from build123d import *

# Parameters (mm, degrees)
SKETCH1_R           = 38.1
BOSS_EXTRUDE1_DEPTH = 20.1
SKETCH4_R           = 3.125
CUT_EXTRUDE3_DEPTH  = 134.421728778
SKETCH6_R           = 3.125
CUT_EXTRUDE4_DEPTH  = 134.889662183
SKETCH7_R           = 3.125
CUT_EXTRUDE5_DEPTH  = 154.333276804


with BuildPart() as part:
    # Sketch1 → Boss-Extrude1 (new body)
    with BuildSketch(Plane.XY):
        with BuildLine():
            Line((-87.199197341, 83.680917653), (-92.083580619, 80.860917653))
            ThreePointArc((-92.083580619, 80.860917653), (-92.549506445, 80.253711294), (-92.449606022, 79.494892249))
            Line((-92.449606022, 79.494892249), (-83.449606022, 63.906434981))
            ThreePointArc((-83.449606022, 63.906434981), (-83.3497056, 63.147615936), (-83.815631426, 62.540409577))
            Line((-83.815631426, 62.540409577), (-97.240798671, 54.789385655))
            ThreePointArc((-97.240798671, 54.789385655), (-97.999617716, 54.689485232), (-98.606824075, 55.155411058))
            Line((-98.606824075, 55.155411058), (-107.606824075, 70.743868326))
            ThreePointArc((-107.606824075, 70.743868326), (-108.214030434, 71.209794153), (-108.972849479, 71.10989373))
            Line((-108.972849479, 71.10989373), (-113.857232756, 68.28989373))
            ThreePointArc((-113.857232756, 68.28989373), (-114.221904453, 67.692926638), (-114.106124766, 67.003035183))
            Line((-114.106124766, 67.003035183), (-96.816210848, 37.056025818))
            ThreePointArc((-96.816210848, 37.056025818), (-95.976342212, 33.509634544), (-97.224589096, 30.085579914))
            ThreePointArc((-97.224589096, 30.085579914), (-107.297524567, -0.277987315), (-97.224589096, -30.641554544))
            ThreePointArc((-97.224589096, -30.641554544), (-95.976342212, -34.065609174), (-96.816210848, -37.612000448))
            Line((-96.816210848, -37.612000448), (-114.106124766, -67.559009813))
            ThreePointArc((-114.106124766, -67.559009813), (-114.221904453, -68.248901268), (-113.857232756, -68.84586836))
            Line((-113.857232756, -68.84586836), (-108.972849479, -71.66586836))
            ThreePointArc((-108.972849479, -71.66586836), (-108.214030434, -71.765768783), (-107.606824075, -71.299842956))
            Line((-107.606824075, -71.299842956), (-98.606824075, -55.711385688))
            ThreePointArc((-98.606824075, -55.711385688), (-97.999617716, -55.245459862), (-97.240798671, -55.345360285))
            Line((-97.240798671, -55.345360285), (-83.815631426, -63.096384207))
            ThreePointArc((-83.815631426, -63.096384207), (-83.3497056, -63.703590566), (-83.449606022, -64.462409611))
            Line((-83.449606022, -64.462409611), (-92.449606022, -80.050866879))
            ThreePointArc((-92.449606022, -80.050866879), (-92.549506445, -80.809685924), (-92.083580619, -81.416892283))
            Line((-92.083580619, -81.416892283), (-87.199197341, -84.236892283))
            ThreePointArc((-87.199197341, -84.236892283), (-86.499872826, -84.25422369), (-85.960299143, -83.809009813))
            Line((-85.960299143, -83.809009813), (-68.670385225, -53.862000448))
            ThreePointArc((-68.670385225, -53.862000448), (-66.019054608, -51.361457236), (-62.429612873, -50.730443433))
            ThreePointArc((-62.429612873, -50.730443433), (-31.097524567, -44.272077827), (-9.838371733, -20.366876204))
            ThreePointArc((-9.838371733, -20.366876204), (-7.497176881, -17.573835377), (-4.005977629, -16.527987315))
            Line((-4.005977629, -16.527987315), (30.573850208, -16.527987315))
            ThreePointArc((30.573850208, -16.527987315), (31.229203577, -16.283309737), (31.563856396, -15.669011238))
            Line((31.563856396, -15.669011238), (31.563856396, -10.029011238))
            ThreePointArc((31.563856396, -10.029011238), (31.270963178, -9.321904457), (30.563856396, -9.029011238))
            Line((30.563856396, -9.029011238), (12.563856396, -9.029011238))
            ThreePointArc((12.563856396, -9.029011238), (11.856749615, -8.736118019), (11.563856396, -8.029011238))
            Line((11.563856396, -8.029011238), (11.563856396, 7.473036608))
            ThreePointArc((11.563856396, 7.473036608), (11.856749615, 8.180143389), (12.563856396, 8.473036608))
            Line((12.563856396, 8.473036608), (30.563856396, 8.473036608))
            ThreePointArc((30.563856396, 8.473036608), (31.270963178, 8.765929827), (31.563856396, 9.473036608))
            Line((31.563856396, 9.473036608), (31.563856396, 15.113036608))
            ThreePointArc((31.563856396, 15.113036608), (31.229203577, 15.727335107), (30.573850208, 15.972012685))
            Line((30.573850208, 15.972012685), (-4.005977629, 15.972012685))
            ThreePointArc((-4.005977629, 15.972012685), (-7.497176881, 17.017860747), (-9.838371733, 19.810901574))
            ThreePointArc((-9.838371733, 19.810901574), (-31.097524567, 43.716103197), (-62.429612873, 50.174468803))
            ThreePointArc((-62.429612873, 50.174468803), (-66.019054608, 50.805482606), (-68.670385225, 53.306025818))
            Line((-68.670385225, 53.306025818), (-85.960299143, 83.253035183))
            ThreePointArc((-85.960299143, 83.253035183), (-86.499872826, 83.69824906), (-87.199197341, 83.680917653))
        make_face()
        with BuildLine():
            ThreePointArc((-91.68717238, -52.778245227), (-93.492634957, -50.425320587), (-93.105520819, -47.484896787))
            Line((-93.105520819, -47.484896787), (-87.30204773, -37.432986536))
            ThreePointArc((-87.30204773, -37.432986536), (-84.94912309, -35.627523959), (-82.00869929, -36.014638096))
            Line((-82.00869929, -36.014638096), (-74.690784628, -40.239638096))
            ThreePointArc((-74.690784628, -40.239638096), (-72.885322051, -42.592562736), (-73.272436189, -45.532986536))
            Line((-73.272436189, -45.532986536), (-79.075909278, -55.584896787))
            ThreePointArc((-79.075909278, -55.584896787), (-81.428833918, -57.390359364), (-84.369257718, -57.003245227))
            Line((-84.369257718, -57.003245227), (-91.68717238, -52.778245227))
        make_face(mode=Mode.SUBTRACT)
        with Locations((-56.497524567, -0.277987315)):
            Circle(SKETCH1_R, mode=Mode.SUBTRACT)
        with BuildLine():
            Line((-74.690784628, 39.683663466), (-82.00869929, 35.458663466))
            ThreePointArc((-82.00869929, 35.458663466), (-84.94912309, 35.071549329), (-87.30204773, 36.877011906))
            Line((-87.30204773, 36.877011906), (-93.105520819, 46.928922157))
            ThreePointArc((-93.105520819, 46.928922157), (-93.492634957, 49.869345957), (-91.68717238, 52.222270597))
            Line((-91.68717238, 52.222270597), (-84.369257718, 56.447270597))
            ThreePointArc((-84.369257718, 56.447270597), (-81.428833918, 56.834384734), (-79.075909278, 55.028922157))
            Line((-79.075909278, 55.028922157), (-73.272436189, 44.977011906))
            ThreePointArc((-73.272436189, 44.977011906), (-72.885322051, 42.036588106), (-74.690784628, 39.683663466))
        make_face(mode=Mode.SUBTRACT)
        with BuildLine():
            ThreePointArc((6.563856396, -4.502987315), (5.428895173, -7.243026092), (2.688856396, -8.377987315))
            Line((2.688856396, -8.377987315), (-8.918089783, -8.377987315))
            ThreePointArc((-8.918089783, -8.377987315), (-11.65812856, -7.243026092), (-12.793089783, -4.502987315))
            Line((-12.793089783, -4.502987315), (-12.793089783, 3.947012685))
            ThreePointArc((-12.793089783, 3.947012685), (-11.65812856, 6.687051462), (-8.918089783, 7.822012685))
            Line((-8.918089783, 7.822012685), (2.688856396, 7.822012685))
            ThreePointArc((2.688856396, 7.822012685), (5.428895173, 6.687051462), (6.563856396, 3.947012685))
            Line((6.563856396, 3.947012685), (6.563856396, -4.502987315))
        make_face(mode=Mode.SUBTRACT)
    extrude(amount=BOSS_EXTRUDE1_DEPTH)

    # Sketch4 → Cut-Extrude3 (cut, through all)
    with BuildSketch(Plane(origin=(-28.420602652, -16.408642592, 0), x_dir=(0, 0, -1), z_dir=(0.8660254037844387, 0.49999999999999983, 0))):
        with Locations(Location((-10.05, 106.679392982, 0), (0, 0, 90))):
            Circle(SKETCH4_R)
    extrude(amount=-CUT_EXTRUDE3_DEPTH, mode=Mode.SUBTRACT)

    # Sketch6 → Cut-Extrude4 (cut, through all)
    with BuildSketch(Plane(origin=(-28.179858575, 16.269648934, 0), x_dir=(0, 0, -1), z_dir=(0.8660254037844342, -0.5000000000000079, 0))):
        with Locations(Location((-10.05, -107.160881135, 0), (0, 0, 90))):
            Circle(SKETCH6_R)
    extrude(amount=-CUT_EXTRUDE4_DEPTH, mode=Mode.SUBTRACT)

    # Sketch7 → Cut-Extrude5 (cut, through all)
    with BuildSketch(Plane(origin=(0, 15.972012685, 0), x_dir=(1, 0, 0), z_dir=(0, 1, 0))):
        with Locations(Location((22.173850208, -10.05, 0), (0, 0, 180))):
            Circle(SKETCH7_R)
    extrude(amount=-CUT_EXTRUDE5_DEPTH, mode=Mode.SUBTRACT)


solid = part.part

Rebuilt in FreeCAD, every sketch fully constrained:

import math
import FreeCAD as App
import Part
import Sketcher
from FreeCAD import Vector
Q = App.Units.Quantity

doc = App.newDocument("Part")
body = doc.addObject("PartDesign::Body", "Body")

# Sketch on XY plane
sketch1 = doc.addObject("Sketcher::SketchObject", "Sketch")
body.addObject(sketch1)
sketch1.AttachmentSupport = (doc.XY_Plane, [""])
sketch1.MapMode = "FlatFace"
sketch1.addGeometry([
    Part.LineSegment(Vector(-87.2, 83.7, 0), Vector(-92.1, 80.9, 0)),  # 0
    Part.ArcOfCircle(Part.Circle(Vector(-91.6, 80, 0), Vector(0, 0, 1), 1), math.radians(120), math.radians(210)),  # 1
    Part.LineSegment(Vector(-92.4, 79.5, 0), Vector(-83.4, 63.9, 0)),  # 2
    Part.ArcOfCircle(Part.Circle(Vector(-84.3, 63.4, 0), Vector(0, 0, 1), 1), math.radians(-60), math.radians(30)),  # 3
    Part.LineSegment(Vector(-83.8, 62.5, 0), Vector(-97.2, 54.8, 0)),  # 4
    Part.ArcOfCircle(Part.Circle(Vector(-97.7, 55.7, 0), Vector(0, 0, 1), 1), math.radians(-150), math.radians(-60)),  # 5
    Part.LineSegment(Vector(-98.6, 55.2, 0), Vector(-107.6, 70.7, 0)),  # 6
    Part.ArcOfCircle(Part.Circle(Vector(-108.5, 70.2, 0), Vector(0, 0, 1), 1), math.radians(30), math.radians(120)),  # 7
    Part.LineSegment(Vector(-109, 71.1, 0), Vector(-113.9, 68.3, 0)),  # 8
    Part.ArcOfCircle(Part.Circle(Vector(-113.2, 67.5, 0), Vector(0, 0, 1), 1), math.radians(128), math.radians(210)),  # 9
    Part.LineSegment(Vector(-114.1, 67, 0), Vector(-96.8, 37.1, 0)),  # 10
    Part.ArcOfCircle(Part.Circle(Vector(-102.3, 33.9, 0), Vector(0, 0, 1), 6.3), math.radians(-37), math.radians(30)),  # 11
    Part.ArcOfCircle(Part.Circle(Vector(-56.5, -0.3, 0), Vector(0, 0, 1), 50.8), math.radians(143), math.radians(217)),  # 12
    Part.ArcOfCircle(Part.Circle(Vector(-102.3, -34.4, 0), Vector(0, 0, 1), 6.3), math.radians(-30), math.radians(37)),  # 13
    Part.LineSegment(Vector(-96.8, -37.6, 0), Vector(-114.1, -67.6, 0)),  # 14
    Part.ArcOfCircle(Part.Circle(Vector(-113.2, -68.1, 0), Vector(0, 0, 1), 1), math.radians(150), math.radians(232)),  # 15
    Part.LineSegment(Vector(-113.9, -68.8, 0), Vector(-109, -71.7, 0)),  # 16
    Part.ArcOfCircle(Part.Circle(Vector(-108.5, -70.8, 0), Vector(0, 0, 1), 1), math.radians(-120), math.radians(-30)),  # 17
    Part.LineSegment(Vector(-107.6, -71.3, 0), Vector(-98.6, -55.7, 0)),  # 18
    Part.ArcOfCircle(Part.Circle(Vector(-97.7, -56.2, 0), Vector(0, 0, 1), 1), math.radians(60), math.radians(150)),  # 19
    Part.LineSegment(Vector(-97.2, -55.3, 0), Vector(-83.8, -63.1, 0)),  # 20
    Part.ArcOfCircle(Part.Circle(Vector(-84.3, -64, 0), Vector(0, 0, 1), 1), math.radians(-30), math.radians(60)),  # 21
    Part.LineSegment(Vector(-83.4, -64.5, 0), Vector(-92.4, -80.1, 0)),  # 22
    Part.ArcOfCircle(Part.Circle(Vector(-91.6, -80.6, 0), Vector(0, 0, 1), 1), math.radians(150), math.radians(240)),  # 23
    Part.LineSegment(Vector(-92.1, -81.4, 0), Vector(-87.2, -84.2, 0)),  # 24
    Part.ArcOfCircle(Part.Circle(Vector(-86.8, -83.3, 0), Vector(0, 0, 1), 1), math.radians(-112), math.radians(-30)),  # 25
    Part.LineSegment(Vector(-86, -83.8, 0), Vector(-68.7, -53.9, 0)),  # 26
    Part.ArcOfCircle(Part.Circle(Vector(-63.2, -57, 0), Vector(0, 0, 1), 6.3), math.radians(83), math.radians(150)),  # 27
    Part.ArcOfCircle(Part.Circle(Vector(-56.5, -0.3, 0), Vector(0, 0, 1), 50.8), math.radians(-97), math.radians(-23)),  # 28
    Part.ArcOfCircle(Part.Circle(Vector(-4, -22.9, 0), Vector(0, 0, 1), 6.3), math.radians(90), math.radians(157)),  # 29
    Part.LineSegment(Vector(-4, -16.5, 0), Vector(30.6, -16.5, 0)),  # 30
    Part.ArcOfCircle(Part.Circle(Vector(30.6, -15.5, 0), Vector(0, 0, 1), 1), math.radians(-90), math.radians(-8)),  # 31
    Part.LineSegment(Vector(31.6, -15.7, 0), Vector(31.6, -10, 0)),  # 32
    Part.ArcOfCircle(Part.Circle(Vector(30.6, -10, 0), Vector(0, 0, 1), 1), math.radians(0), math.radians(90)),  # 33
    Part.LineSegment(Vector(30.6, -9, 0), Vector(12.6, -9, 0)),  # 34
    Part.ArcOfCircle(Part.Circle(Vector(12.6, -8, 0), Vector(0, 0, 1), 1), math.radians(-180), math.radians(-90)),  # 35
    Part.LineSegment(Vector(11.6, -8, 0), Vector(11.6, 7.5, 0)),  # 36
    Part.ArcOfCircle(Part.Circle(Vector(12.6, 7.5, 0), Vector(0, 0, 1), 1), math.radians(90), math.radians(180)),  # 37
    Part.LineSegment(Vector(12.6, 8.5, 0), Vector(30.6, 8.5, 0)),  # 38
    Part.ArcOfCircle(Part.Circle(Vector(30.6, 9.5, 0), Vector(0, 0, 1), 1), math.radians(-90), math.radians(0)),  # 39
    Part.LineSegment(Vector(31.6, 9.5, 0), Vector(31.6, 15.1, 0)),  # 40
    Part.ArcOfCircle(Part.Circle(Vector(30.6, 15, 0), Vector(0, 0, 1), 1), math.radians(8), math.radians(90)),  # 41
    Part.LineSegment(Vector(30.6, 16, 0), Vector(-4, 16, 0)),  # 42
    Part.ArcOfCircle(Part.Circle(Vector(-4, 22.3, 0), Vector(0, 0, 1), 6.3), math.radians(-157), math.radians(-90)),  # 43
    Part.ArcOfCircle(Part.Circle(Vector(-56.5, -0.3, 0), Vector(0, 0, 1), 50.8), math.radians(23), math.radians(97)),  # 44
    Part.ArcOfCircle(Part.Circle(Vector(-63.2, 56.5, 0), Vector(0, 0, 1), 6.3), math.radians(-150), math.radians(-83)),  # 45
    Part.LineSegment(Vector(-68.7, 53.3, 0), Vector(-86, 83.3, 0)),  # 46
    Part.ArcOfCircle(Part.Circle(Vector(-86.8, 82.8, 0), Vector(0, 0, 1), 1), math.radians(30), math.radians(112)),  # 47
    Part.LineSegment(Vector(-84.4, -57, 0), Vector(-91.7, -52.8, 0)),  # 48
    Part.ArcOfCircle(Part.Circle(Vector(-89.7, -49.4, 0), Vector(0, 0, 1), 3.9), math.radians(150), math.radians(240)),  # 49
    Part.LineSegment(Vector(-93.1, -47.5, 0), Vector(-87.3, -37.4, 0)),  # 50
    Part.ArcOfCircle(Part.Circle(Vector(-83.9, -39.4, 0), Vector(0, 0, 1), 3.9), math.radians(60), math.radians(150)),  # 51
    Part.LineSegment(Vector(-82, -36, 0), Vector(-74.7, -40.2, 0)),  # 52
    Part.ArcOfCircle(Part.Circle(Vector(-76.6, -43.6, 0), Vector(0, 0, 1), 3.9), math.radians(-30), math.radians(60)),  # 53
    Part.LineSegment(Vector(-73.3, -45.5, 0), Vector(-79.1, -55.6, 0)),  # 54
    Part.ArcOfCircle(Part.Circle(Vector(-82.4, -53.6, 0), Vector(0, 0, 1), 3.9), math.radians(-120), math.radians(-30)),  # 55
    Part.Circle(Vector(-56.5, -0.3, 0), Vector(0, 0, 1), 38.1),  # 56
    Part.ArcOfCircle(Part.Circle(Vector(-76.6, 43, 0), Vector(0, 0, 1), 3.9), math.radians(-60), math.radians(30)),  # 57
    Part.LineSegment(Vector(-74.7, 39.7, 0), Vector(-82, 35.5, 0)),  # 58
    Part.ArcOfCircle(Part.Circle(Vector(-83.9, 38.8, 0), Vector(0, 0, 1), 3.9), math.radians(-150), math.radians(-60)),  # 59
    Part.LineSegment(Vector(-87.3, 36.9, 0), Vector(-93.1, 46.9, 0)),  # 60
    Part.ArcOfCircle(Part.Circle(Vector(-89.7, 48.9, 0), Vector(0, 0, 1), 3.9), math.radians(120), math.radians(210)),  # 61
    Part.LineSegment(Vector(-91.7, 52.2, 0), Vector(-84.4, 56.4, 0)),  # 62
    Part.ArcOfCircle(Part.Circle(Vector(-82.4, 53.1, 0), Vector(0, 0, 1), 3.9), math.radians(30), math.radians(120)),  # 63
    Part.LineSegment(Vector(-79.1, 55, 0), Vector(-73.3, 45, 0)),  # 64
    Part.LineSegment(Vector(6.6, 3.9, 0), Vector(6.6, -4.5, 0)),  # 65
    Part.ArcOfCircle(Part.Circle(Vector(2.7, -4.5, 0), Vector(0, 0, 1), 3.9), math.radians(-90), math.radians(0)),  # 66
    Part.LineSegment(Vector(2.7, -8.4, 0), Vector(-8.9, -8.4, 0)),  # 67
    Part.ArcOfCircle(Part.Circle(Vector(-8.9, -4.5, 0), Vector(0, 0, 1), 3.9), math.radians(180), math.radians(270)),  # 68
    Part.LineSegment(Vector(-12.8, -4.5, 0), Vector(-12.8, 3.9, 0)),  # 69
    Part.ArcOfCircle(Part.Circle(Vector(-8.9, 3.9, 0), Vector(0, 0, 1), 3.9), math.radians(90), math.radians(180)),  # 70
    Part.LineSegment(Vector(-8.9, 7.8, 0), Vector(2.7, 7.8, 0)),  # 71
    Part.ArcOfCircle(Part.Circle(Vector(2.7, 3.9, 0), Vector(0, 0, 1), 3.9), math.radians(0), math.radians(90)),  # 72
], False)
sketch1.addConstraint([
    Sketcher.Constraint("Tangent", 0, 2, 1, 1),
    Sketcher.Constraint("Tangent", 1, 2, 2, 1),
    Sketcher.Constraint("Tangent", 2, 2, 3, 2),
    Sketcher.Constraint("Tangent", 3, 1, 4, 1),
    Sketcher.Constraint("Tangent", 4, 2, 5, 2),
    Sketcher.Constraint("Tangent", 5, 1, 6, 1),
    Sketcher.Constraint("Tangent", 6, 2, 7, 1),
    Sketcher.Constraint("Tangent", 7, 2, 8, 1),
    Sketcher.Constraint("Coincident", 8, 2, 9, 1),
    Sketcher.Constraint("Tangent", 9, 2, 10, 1),
    Sketcher.Constraint("Tangent", 10, 2, 11, 2),
    Sketcher.Constraint("Tangent", 11, 1, 12, 1),
    Sketcher.Constraint("Tangent", 12, 2, 13, 2),
    Sketcher.Constraint("Tangent", 13, 1, 14, 1),
    Sketcher.Constraint("Tangent", 14, 2, 15, 1),
    Sketcher.Constraint("Coincident", 15, 2, 16, 1),
    Sketcher.Constraint("Tangent", 16, 2, 17, 1),
    Sketcher.Constraint("Tangent", 17, 2, 18, 1),
    Sketcher.Constraint("Tangent", 18, 2, 19, 2),
    Sketcher.Constraint("Tangent", 19, 1, 20, 1),
    Sketcher.Constraint("Tangent", 20, 2, 21, 2),
    Sketcher.Constraint("Tangent", 21, 1, 22, 1),
    Sketcher.Constraint("Tangent", 22, 2, 23, 1),
    Sketcher.Constraint("Tangent", 23, 2, 24, 1),
    Sketcher.Constraint("Coincident", 24, 2, 25, 1),
    Sketcher.Constraint("Tangent", 25, 2, 26, 1),
    Sketcher.Constraint("Tangent", 26, 2, 27, 2),
    Sketcher.Constraint("Tangent", 27, 1, 28, 1),
    Sketcher.Constraint("Tangent", 28, 2, 29, 2),
    Sketcher.Constraint("Tangent", 29, 1, 30, 1),
    Sketcher.Constraint("Tangent", 30, 2, 31, 1),
    Sketcher.Constraint("Coincident", 31, 2, 32, 1),
    Sketcher.Constraint("Tangent", 32, 2, 33, 1),
    Sketcher.Constraint("Tangent", 33, 2, 34, 1),
    Sketcher.Constraint("Tangent", 34, 2, 35, 2),
    Sketcher.Constraint("Tangent", 35, 1, 36, 1),
    Sketcher.Constraint("Tangent", 36, 2, 37, 2),
    Sketcher.Constraint("Tangent", 37, 1, 38, 1),
    Sketcher.Constraint("Tangent", 38, 2, 39, 1),
    Sketcher.Constraint("Tangent", 39, 2, 40, 1),
    Sketcher.Constraint("Coincident", 40, 2, 41, 1),
    Sketcher.Constraint("Tangent", 41, 2, 42, 1),
    Sketcher.Constraint("Tangent", 42, 2, 43, 2),
    Sketcher.Constraint("Tangent", 43, 1, 44, 1),
    Sketcher.Constraint("Tangent", 44, 2, 45, 2),
    Sketcher.Constraint("Tangent", 45, 1, 46, 1),
    Sketcher.Constraint("Tangent", 46, 2, 47, 1),
    Sketcher.Constraint("Coincident", 47, 2, 0, 1),
    Sketcher.Constraint("Tangent", 48, 2, 49, 2),
    Sketcher.Constraint("Tangent", 49, 1, 50, 1),
    Sketcher.Constraint("Tangent", 50, 2, 51, 2),
    Sketcher.Constraint("Tangent", 51, 1, 52, 1),
    Sketcher.Constraint("Tangent", 52, 2, 53, 2),
    Sketcher.Constraint("Tangent", 53, 1, 54, 1),
    Sketcher.Constraint("Tangent", 54, 2, 55, 2),
    Sketcher.Constraint("Tangent", 55, 1, 48, 1),
    Sketcher.Constraint("Tangent", 57, 1, 58, 1),
    Sketcher.Constraint("Tangent", 58, 2, 59, 2),
    Sketcher.Constraint("Tangent", 59, 1, 60, 1),
    Sketcher.Constraint("Tangent", 60, 2, 61, 2),
    Sketcher.Constraint("Tangent", 61, 1, 62, 1),
    Sketcher.Constraint("Tangent", 62, 2, 63, 2),
    Sketcher.Constraint("Tangent", 63, 1, 64, 1),
    Sketcher.Constraint("Tangent", 64, 2, 57, 2),
    Sketcher.Constraint("Tangent", 65, 2, 66, 2),
    Sketcher.Constraint("Tangent", 66, 1, 67, 1),
    Sketcher.Constraint("Tangent", 67, 2, 68, 2),
    Sketcher.Constraint("Tangent", 68, 1, 69, 1),
    Sketcher.Constraint("Tangent", 69, 2, 70, 2),
    Sketcher.Constraint("Tangent", 70, 1, 71, 1),
    Sketcher.Constraint("Tangent", 71, 2, 72, 2),
    Sketcher.Constraint("Tangent", 72, 1, 65, 1),
    Sketcher.Constraint("Horizontal", 30),
    Sketcher.Constraint("Vertical", 32),
    Sketcher.Constraint("Horizontal", 34),
    Sketcher.Constraint("Vertical", 36),
    Sketcher.Constraint("Horizontal", 38),
    Sketcher.Constraint("Vertical", 40),
    Sketcher.Constraint("Horizontal", 42),
    Sketcher.Constraint("Vertical", 65),
    Sketcher.Constraint("Horizontal", 67),
    Sketcher.Constraint("Vertical", 69),
    Sketcher.Constraint("Horizontal", 71),
    Sketcher.Constraint("Coincident", 28, 3, 12, 3),
    Sketcher.Constraint("Coincident", 44, 3, 12, 3),
    Sketcher.Constraint("Coincident", 56, 3, 12, 3),
    Sketcher.Constraint("Equal", 1, 3),
    Sketcher.Constraint("Equal", 3, 5),
    Sketcher.Constraint("Equal", 5, 7),
    Sketcher.Constraint("Equal", 7, 9),
    Sketcher.Constraint("Equal", 11, 13),
    Sketcher.Constraint("Equal", 9, 15),
    Sketcher.Constraint("Equal", 15, 17),
    Sketcher.Constraint("Equal", 17, 19),
    Sketcher.Constraint("Equal", 19, 21),
    Sketcher.Constraint("Equal", 21, 23),
    Sketcher.Constraint("Equal", 23, 25),
    Sketcher.Constraint("Equal", 13, 27),
    Sketcher.Constraint("Equal", 12, 28),
    Sketcher.Constraint("Equal", 27, 29),
    Sketcher.Constraint("Equal", 25, 31),
    Sketcher.Constraint("Equal", 31, 33),
    Sketcher.Constraint("Equal", 33, 35),
    Sketcher.Constraint("Equal", 35, 37),
    Sketcher.Constraint("Equal", 37, 39),
    Sketcher.Constraint("Equal", 39, 41),
    Sketcher.Constraint("Equal", 29, 43),
    Sketcher.Constraint("Equal", 28, 44),
    Sketcher.Constraint("Equal", 43, 45),
    Sketcher.Constraint("Equal", 41, 47),
    Sketcher.Constraint("Equal", 49, 51),
    Sketcher.Constraint("Equal", 51, 53),
    Sketcher.Constraint("Equal", 53, 55),
    Sketcher.Constraint("Equal", 55, 57),
    Sketcher.Constraint("Equal", 57, 59),
    Sketcher.Constraint("Equal", 59, 61),
    Sketcher.Constraint("Equal", 61, 63),
    Sketcher.Constraint("Equal", 63, 66),
    Sketcher.Constraint("Equal", 66, 68),
    Sketcher.Constraint("Equal", 68, 70),
    Sketcher.Constraint("Equal", 70, 72),
    Sketcher.Constraint("Perpendicular", 0, 2),
    Sketcher.Constraint("Perpendicular", 2, 4),
    Sketcher.Constraint("Perpendicular", 4, 6),
    Sketcher.Constraint("Perpendicular", 6, 8),
    Sketcher.Constraint("Perpendicular", 8, 10),
    Sketcher.Constraint("Perpendicular", 14, 16),
    Sketcher.Constraint("Perpendicular", 16, 18),
    Sketcher.Constraint("Perpendicular", 18, 20),
    Sketcher.Constraint("Perpendicular", 20, 22),
    Sketcher.Constraint("Perpendicular", 22, 24),
    Sketcher.Constraint("Perpendicular", 24, 26),
    Sketcher.Constraint("Parallel", 10, 46),
    Sketcher.Constraint("Perpendicular", 26, 48),
    Sketcher.Constraint("Perpendicular", 48, 50),
    Sketcher.Constraint("Perpendicular", 50, 52),
    Sketcher.Constraint("Perpendicular", 52, 54),
    Sketcher.Constraint("Perpendicular", 46, 58),
    Sketcher.Constraint("Perpendicular", 58, 60),
    Sketcher.Constraint("Perpendicular", 60, 62),
    Sketcher.Constraint("Perpendicular", 62, 64),
    Sketcher.Constraint("Vertical", 11, 3, 13, 3),
    Sketcher.Constraint("Vertical", 9, 3, 15, 3),
    Sketcher.Constraint("Vertical", 7, 3, 17, 3),
    Sketcher.Constraint("Vertical", 5, 3, 19, 3),
    Sketcher.Constraint("Vertical", 3, 3, 21, 3),
    Sketcher.Constraint("Vertical", 1, 3, 23, 3),
    Sketcher.Constraint("Vertical", 33, 3, 39, 3),
    Sketcher.Constraint("Vertical", 31, 3, 41, 3),
    Sketcher.Constraint("Vertical", 29, 3, 43, 3),
    Sketcher.Constraint("Vertical", 27, 3, 45, 3),
    Sketcher.Constraint("Vertical", 25, 3, 47, 3),
    Sketcher.Constraint("Vertical", 53, 3, 57, 3),
    Sketcher.Constraint("Vertical", 51, 3, 59, 3),
    Sketcher.Constraint("Vertical", 49, 3, 61, 3),
    Sketcher.Constraint("Vertical", 10, 2, 13, 1),
    Sketcher.Constraint("Vertical", 8, 2, 15, 2),
    Sketcher.Constraint("Equal", 32, 40),
    Sketcher.Constraint("Equal", 2, 6),
    Sketcher.Constraint("Equal", 0, 8),
    Sketcher.Constraint("Equal", 14, 26),
    Sketcher.Constraint("Radius", 1, 1.0),
    Sketcher.Constraint("Diameter", 56, 76.2),
    Sketcher.Constraint("Radius", 12, 50.8),
    Sketcher.Constraint("DistanceX", 34, 2, 34, 1, 18.0),
    Sketcher.Constraint("Angle", 0, Q("-150 deg")),
    Sketcher.Constraint("Radius", 11, 6.35),
    Sketcher.Constraint("Distance", 2, 18.0),
    Sketcher.Constraint("Radius", 49, 3.875),
    Sketcher.Constraint("DistanceY", 32, 1, 32, 2, 5.64),
    Sketcher.Constraint("DistanceY", 65, 2, 65, 1, 8.45),
    Sketcher.Constraint("Distance", 0, 5.64),
    Sketcher.Constraint("Distance", 48, 8.45),
    Sketcher.Constraint("DistanceY", 13, 3, -1, 1, 34.437),
    Sketcher.Constraint("DistanceY", 27, 3, -1, 1, 57.037),
    Sketcher.Constraint("DistanceX", 5, 3, -1, 1, 97.740799),
    Sketcher.Constraint("DistanceX", 9, 3, -1, 1, 113.240099),
    Sketcher.Constraint("DistanceX", 51, 3, -1, 1, 83.946199),
    Sketcher.Constraint("DistanceX", 25, 2, -1, 1, 85.960299),
    Sketcher.Constraint("DistanceY", -1, 1, 43, 1, 19.810902),
    Sketcher.Constraint("DistanceX", 30, 1, 30, 2, 34.579828),
    Sketcher.Constraint("DistanceX", 67, 2, 67, 1, 11.606946),
    Sketcher.Constraint("DistanceY", 36, 1, 36, 2, 15.502048),
    Sketcher.Constraint("DistanceY", -1, 1, 5, 3, 55.655411),
    Sketcher.Constraint("DistanceY", -1, 1, 57, 3, 43.039512),
    Sketcher.Constraint("DistanceX", 68, 3, -1, 1, 8.91809),
    Sketcher.Constraint("DistanceX", 49, 1, -1, 1, 93.105521),
    Sketcher.Constraint("DistanceY", 51, 1, -1, 1, 36.014638),
    Sketcher.Constraint("DistanceY", 66, 3, -1, 1, 4.502987),
])
pad1 = doc.addObject("PartDesign::Pad", "Pad")
body.addObject(pad1)
pad1.Profile = sketch1
pad1.Length = 20.1

# Sketch on an angled plane
sketch2 = doc.addObject("Sketcher::SketchObject", "Sketch001")
body.addObject(sketch2)
sketch2.Placement = App.Placement(Vector(-28.420603, -16.408643, 0), App.Rotation(Vector(0, 0, -1), Vector(-0.5, 0.866025404, 0), Vector(0.866025404, 0.5, 0), "ZXY"))
sketch2.addGeometry(Part.Circle(Vector(-10.1, 106.7, 0), Vector(0, 0, 1), 3.1), False)
sketch2.addConstraint([
    Sketcher.Constraint("Diameter", 0, 6.25),
    Sketcher.Constraint("DistanceX", 0, 3, -1, 1, 10.05),
    Sketcher.Constraint("DistanceY", -1, 1, 0, 3, 106.679393),
])
pocket1 = doc.addObject("PartDesign::Pocket", "Pocket")
body.addObject(pocket1)
pocket1.Profile = sketch2
pocket1.Type = "ThroughAll"

# Sketch on an angled plane
sketch3 = doc.addObject("Sketcher::SketchObject", "Sketch002")
body.addObject(sketch3)
sketch3.Placement = App.Placement(Vector(-28.179859, 16.269649, 0), App.Rotation(Vector(0, 0, -1), Vector(0.5, 0.866025404, 0), Vector(0.866025404, -0.5, 0), "ZXY"))
sketch3.addGeometry(Part.Circle(Vector(-10.1, -107.2, 0), Vector(0, 0, 1), 3.1), False)
sketch3.addConstraint([
    Sketcher.Constraint("Diameter", 0, 6.25),
    Sketcher.Constraint("DistanceX", 0, 3, -1, 1, 10.05),
    Sketcher.Constraint("DistanceY", 0, 3, -1, 1, 107.160881),
])
pocket2 = doc.addObject("PartDesign::Pocket", "Pocket001")
body.addObject(pocket2)
pocket2.Profile = sketch3
pocket2.Type = "ThroughAll"

# Sketch on XZ plane
sketch4 = doc.addObject("Sketcher::SketchObject", "Sketch003")
body.addObject(sketch4)
sketch4.AttachmentSupport = (doc.XZ_Plane, [""])
sketch4.MapMode = "FlatFace"
sketch4.AttachmentOffset = App.Placement(Vector(0, 0, -15.972013), App.Rotation())
sketch4.addGeometry(Part.Circle(Vector(22.2, 10.1, 0), Vector(0, 0, 1), 3.1), False)
sketch4.addConstraint([
    Sketcher.Constraint("Diameter", 0, 6.25),
    Sketcher.Constraint("DistanceY", -1, 1, 0, 3, 10.05),
    Sketcher.Constraint("DistanceX", -1, 1, 0, 3, 22.17385),
])
pocket3 = doc.addObject("PartDesign::Pocket", "Pocket002")
body.addObject(pocket3)
pocket3.Profile = sketch4
pocket3.Type = "ThroughAll"
pocket3.Reversed = True

doc.recompute()
